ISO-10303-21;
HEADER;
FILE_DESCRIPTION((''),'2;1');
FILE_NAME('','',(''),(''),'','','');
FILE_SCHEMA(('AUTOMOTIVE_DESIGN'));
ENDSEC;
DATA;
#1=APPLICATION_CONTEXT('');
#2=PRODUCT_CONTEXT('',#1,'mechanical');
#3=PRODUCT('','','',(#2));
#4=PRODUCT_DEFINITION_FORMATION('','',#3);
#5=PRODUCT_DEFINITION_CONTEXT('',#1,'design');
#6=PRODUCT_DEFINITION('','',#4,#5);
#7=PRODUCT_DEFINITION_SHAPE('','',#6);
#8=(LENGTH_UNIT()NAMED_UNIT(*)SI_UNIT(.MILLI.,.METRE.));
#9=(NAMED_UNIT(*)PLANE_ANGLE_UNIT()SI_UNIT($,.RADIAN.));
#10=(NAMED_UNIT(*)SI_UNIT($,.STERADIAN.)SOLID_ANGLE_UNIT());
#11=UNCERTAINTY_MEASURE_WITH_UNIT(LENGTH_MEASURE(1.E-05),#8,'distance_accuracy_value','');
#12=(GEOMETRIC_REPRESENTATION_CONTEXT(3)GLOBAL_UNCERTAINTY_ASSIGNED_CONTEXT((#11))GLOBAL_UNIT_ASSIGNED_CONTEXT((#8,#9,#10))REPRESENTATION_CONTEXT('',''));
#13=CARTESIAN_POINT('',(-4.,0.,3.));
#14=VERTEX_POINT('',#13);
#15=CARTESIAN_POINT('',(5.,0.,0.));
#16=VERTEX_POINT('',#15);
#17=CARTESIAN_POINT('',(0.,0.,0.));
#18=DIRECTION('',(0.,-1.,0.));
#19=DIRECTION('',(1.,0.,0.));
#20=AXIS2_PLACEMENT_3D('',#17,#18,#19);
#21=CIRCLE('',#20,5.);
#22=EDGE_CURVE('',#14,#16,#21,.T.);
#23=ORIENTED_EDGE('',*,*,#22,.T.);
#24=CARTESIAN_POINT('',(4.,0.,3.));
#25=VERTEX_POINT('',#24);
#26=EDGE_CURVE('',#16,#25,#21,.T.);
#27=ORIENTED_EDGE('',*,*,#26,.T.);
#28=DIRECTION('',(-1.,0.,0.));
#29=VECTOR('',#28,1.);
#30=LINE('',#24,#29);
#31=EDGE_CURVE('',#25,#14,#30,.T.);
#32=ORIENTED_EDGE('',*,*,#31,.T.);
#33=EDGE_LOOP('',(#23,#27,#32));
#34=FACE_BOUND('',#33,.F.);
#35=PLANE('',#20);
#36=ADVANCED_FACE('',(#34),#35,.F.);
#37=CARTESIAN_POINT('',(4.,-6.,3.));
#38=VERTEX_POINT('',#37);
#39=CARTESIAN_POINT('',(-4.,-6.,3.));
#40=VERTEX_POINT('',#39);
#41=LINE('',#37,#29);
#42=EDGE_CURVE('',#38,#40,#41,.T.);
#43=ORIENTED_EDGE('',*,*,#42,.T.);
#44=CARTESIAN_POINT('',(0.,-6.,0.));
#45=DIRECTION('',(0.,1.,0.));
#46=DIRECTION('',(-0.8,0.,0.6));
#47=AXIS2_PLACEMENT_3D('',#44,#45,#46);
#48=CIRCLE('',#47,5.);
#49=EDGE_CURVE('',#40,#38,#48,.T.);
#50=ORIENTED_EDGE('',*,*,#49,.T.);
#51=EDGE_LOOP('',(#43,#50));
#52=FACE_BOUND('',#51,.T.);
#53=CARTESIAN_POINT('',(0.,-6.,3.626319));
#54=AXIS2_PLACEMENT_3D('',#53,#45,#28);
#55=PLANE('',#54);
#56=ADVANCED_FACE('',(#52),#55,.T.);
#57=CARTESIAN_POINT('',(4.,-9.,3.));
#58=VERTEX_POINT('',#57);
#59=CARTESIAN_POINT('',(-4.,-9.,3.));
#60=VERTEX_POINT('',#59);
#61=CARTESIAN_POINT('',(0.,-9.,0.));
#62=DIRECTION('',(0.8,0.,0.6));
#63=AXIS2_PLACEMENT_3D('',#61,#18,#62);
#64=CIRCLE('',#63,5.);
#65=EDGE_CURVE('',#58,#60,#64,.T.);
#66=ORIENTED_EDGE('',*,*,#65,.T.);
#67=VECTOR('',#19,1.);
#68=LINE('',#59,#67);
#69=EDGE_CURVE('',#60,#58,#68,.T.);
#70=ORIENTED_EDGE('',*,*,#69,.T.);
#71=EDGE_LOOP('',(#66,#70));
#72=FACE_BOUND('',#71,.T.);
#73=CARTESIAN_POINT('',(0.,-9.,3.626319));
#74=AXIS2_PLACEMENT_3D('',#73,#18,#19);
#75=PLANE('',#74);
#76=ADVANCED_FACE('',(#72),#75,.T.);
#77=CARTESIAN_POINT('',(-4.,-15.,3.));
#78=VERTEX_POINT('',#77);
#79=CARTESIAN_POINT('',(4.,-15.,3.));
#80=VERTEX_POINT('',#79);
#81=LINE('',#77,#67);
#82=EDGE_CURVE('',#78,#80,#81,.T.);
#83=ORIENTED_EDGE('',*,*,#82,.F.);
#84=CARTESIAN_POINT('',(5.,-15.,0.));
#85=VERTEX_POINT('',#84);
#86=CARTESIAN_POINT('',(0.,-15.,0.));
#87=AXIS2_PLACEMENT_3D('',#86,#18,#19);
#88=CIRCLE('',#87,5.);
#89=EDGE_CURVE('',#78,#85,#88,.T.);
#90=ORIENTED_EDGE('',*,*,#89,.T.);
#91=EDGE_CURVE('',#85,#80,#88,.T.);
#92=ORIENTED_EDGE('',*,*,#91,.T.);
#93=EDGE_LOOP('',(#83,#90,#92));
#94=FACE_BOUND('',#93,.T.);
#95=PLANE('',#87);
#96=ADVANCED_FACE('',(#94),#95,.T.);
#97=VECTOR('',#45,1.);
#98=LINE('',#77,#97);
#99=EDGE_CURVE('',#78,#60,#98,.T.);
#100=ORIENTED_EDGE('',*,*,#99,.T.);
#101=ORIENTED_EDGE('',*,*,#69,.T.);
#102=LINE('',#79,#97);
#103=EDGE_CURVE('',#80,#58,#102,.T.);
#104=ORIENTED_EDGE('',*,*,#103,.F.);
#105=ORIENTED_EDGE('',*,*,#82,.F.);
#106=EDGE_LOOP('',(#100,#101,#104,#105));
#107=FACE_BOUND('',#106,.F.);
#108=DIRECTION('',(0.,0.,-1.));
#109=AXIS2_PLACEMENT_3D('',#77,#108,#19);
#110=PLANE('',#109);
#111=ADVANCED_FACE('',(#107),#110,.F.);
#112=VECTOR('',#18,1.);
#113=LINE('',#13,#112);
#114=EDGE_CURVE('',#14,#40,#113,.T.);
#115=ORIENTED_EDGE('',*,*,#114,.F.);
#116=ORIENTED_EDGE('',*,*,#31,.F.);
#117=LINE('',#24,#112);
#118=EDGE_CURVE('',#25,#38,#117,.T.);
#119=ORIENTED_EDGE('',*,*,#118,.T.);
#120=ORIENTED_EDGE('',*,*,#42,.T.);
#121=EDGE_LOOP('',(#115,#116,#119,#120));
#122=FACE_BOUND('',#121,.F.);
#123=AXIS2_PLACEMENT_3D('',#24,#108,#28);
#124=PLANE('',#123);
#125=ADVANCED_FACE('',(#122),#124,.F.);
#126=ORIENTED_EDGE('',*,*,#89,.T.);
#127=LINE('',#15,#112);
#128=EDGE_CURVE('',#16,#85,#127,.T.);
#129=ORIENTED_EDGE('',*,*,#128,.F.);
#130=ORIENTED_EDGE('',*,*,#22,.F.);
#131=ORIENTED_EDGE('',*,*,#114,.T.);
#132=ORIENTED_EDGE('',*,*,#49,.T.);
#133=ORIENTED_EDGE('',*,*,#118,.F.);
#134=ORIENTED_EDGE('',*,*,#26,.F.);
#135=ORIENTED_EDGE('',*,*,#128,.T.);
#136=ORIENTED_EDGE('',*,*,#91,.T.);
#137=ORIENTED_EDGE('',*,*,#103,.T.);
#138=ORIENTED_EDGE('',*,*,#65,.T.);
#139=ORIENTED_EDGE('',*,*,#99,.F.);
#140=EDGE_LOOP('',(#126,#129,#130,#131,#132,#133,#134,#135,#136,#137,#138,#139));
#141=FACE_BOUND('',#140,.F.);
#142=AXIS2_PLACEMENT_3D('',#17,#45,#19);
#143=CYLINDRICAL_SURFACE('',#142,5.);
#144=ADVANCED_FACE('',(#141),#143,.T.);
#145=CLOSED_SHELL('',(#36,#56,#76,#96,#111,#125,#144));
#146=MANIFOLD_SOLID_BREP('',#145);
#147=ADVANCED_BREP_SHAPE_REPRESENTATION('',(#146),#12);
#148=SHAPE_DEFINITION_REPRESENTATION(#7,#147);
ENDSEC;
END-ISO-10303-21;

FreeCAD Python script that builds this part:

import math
import FreeCAD as App
import Part
import Sketcher
from FreeCAD import Vector

doc = App.newDocument("Part")
body = doc.addObject("PartDesign::Body", "Body")

# Sketch on XZ plane
sketch1 = body.newObject("Sketcher::SketchObject", "Sketch")
sketch1.AttachmentSupport = (doc.getObject("XZ_Plane"), [""])
sketch1.MapMode = "FlatFace"
sketch1.addGeometry(Part.Circle(Vector(0, 0, 0), Vector(0, 0, 1), 5), False)
sketch1.addConstraint([
    Sketcher.Constraint("Coincident", 0, 3, -1, 1),
    Sketcher.Constraint("Diameter", 0, 10.0),
])
pad1 = body.newObject("PartDesign::Pad", "Pad")
pad1.Profile = sketch1
pad1.Length = 15

# Sketch on XZ plane
sketch2 = body.newObject("Sketcher::SketchObject", "Sketch001")
sketch2.AttachmentSupport = (doc.getObject("XZ_Plane"), [""])
sketch2.MapMode = "FlatFace"
sketch2.AttachmentOffset = App.Placement(Vector(0, 0, 15), App.Rotation())
sketch2.addGeometry([
    Part.ArcOfCircle(Part.Circle(Vector(0, 0, 0), Vector(0, 0, 1), 5), math.radians(37), math.radians(143)),
    Part.LineSegment(Vector(-4, 3, 0), Vector(4, 3, 0)),
], False)
sketch2.addConstraint([
    Sketcher.Constraint("Coincident", 0, 1, 1, 2),
    Sketcher.Constraint("Coincident", 1, 1, 0, 2),
    Sketcher.Constraint("Horizontal", 1),
    Sketcher.Constraint("Coincident", 0, 3, -1, 1),
    Sketcher.Constraint("Radius", 0, 5.0),
    Sketcher.Constraint("DistanceX", 1, 1, 1, 2, 8.0),
])
pocket1 = body.newObject("PartDesign::Pocket", "Pocket")
pocket1.Profile = sketch2
pocket1.Length = 6

# Sketch on XZ plane
sketch3 = body.newObject("Sketcher::SketchObject", "Sketch002")
sketch3.AttachmentSupport = (doc.getObject("XZ_Plane"), [""])
sketch3.MapMode = "FlatFace"
sketch3.addGeometry([
    Part.ArcOfCircle(Part.Circle(Vector(0, 0, 0), Vector(0, 0, 1), 5), math.radians(37), math.radians(143)),
    Part.LineSegment(Vector(4, 3, 0), Vector(-4, 3, 0)),
], False)
sketch3.addConstraint([
    Sketcher.Constraint("Coincident", 0, 1, 1, 1),
    Sketcher.Constraint("Coincident", 1, 2, 0, 2),
    Sketcher.Constraint("Horizontal", 1),
    Sketcher.Constraint("Coincident", 0, 3, -1, 1),
    Sketcher.Constraint("Radius", 0, 5.0),
    Sketcher.Constraint("DistanceX", 1, 2, 1, 1, 8.0),
])
pocket2 = body.newObject("PartDesign::Pocket", "Pocket001")
pocket2.Profile = sketch3
pocket2.Length = 6
pocket2.Reversed = True

doc.recompute()
